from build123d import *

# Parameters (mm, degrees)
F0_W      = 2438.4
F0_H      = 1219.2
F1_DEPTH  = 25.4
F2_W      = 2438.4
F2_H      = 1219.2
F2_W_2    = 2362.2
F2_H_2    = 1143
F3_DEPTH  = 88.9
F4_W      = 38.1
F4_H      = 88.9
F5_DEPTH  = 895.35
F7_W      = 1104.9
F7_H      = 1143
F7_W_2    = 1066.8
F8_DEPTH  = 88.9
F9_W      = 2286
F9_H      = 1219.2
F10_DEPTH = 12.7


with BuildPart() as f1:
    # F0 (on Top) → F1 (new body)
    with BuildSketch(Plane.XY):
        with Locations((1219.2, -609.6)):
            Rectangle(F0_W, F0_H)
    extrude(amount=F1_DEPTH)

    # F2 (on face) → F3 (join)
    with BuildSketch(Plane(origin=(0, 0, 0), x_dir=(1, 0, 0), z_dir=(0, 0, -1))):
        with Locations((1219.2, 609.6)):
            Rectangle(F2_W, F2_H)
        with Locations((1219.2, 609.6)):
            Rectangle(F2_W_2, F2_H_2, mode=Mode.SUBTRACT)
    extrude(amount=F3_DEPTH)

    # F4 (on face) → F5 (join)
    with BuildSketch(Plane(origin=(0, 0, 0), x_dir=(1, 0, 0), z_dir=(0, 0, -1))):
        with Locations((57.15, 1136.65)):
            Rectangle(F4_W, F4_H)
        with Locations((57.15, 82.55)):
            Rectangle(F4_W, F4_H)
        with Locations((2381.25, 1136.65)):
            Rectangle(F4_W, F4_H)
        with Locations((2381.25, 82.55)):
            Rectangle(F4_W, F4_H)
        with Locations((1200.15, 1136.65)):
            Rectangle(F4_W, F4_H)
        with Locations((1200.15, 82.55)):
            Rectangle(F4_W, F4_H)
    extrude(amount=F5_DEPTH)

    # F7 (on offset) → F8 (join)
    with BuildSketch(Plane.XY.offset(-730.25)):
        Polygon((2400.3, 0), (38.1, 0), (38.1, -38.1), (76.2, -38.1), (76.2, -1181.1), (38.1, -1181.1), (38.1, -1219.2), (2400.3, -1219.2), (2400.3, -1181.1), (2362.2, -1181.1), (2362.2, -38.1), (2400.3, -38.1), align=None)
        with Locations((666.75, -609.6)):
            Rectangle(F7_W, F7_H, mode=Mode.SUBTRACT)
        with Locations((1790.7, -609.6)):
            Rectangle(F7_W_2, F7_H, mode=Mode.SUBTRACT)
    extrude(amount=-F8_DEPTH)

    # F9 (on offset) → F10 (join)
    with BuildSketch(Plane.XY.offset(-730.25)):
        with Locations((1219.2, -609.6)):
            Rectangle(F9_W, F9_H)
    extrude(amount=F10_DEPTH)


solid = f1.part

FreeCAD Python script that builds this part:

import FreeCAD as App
import Part
import Sketcher
Q = App.Units.Quantity

doc = App.newDocument("Part")
body = doc.addObject("PartDesign::Body", "Body")

# Sketch on XY plane
sketch1 = body.newObject("Sketcher::SketchObject", "Sketch")
sketch1.AttachmentSupport = (doc.getObject("XY_Plane"), [""])
sketch1.MapMode = "FlatFace"
sketch1.addGeometry([
    Part.LineSegment(App.Vector(0, 0, 0), App.Vector(0, -1219, 0)),
    Part.LineSegment(App.Vector(0, -1219, 0), App.Vector(2438, -1219, 0)),
    Part.LineSegment(App.Vector(2438, -1219, 0), App.Vector(2438, 0, 0)),
    Part.LineSegment(App.Vector(2438, 0, 0), App.Vector(0, 0, 0)),
], False)
sketch1.addConstraint([
    Sketcher.Constraint("Coincident", 0, 2, 1, 1),
    Sketcher.Constraint("Coincident", 1, 2, 2, 1),
    Sketcher.Constraint("Coincident", 2, 2, 3, 1),
    Sketcher.Constraint("Coincident", 3, 2, 0, 1),
    Sketcher.Constraint("Vertical", 0),
    Sketcher.Constraint("Horizontal", 1),
    Sketcher.Constraint("Vertical", 2),
    Sketcher.Constraint("Horizontal", 3),
    Sketcher.Constraint("Coincident", 3, 2, -1, 1),
    Sketcher.Constraint("DistanceX", 1, 1, 1, 2, Q("96 in")),
    Sketcher.Constraint("DistanceY", 0, 2, 0, 1, Q("48 in")),
])
pad1 = body.newObject("PartDesign::Pad", "Pad")
pad1.Profile = sketch1
pad1.Length = Q("1 in")

# Sketch on XY plane
sketch2 = body.newObject("Sketcher::SketchObject", "Sketch001")
sketch2.AttachmentSupport = (doc.getObject("XY_Plane"), [""])
sketch2.MapMode = "FlatFace"
sketch2.addGeometry([
    Part.LineSegment(App.Vector(0, -1219, 0), App.Vector(0, 0, 0)),  # 0
    Part.LineSegment(App.Vector(0, 0, 0), App.Vector(2438, 0, 0)),  # 1
    Part.LineSegment(App.Vector(2438, 0, 0), App.Vector(2438, -1219, 0)),  # 2
    Part.LineSegment(App.Vector(2438, -1219, 0), App.Vector(0, -1219, 0)),  # 3
    Part.LineSegment(App.Vector(2400, -38, 0), App.Vector(38, -38, 0)),  # 4
    Part.LineSegment(App.Vector(38, -38, 0), App.Vector(38, -1181, 0)),  # 5
    Part.LineSegment(App.Vector(38, -1181, 0), App.Vector(2400, -1181, 0)),  # 6
    Part.LineSegment(App.Vector(2400, -1181, 0), App.Vector(2400, -38, 0)),  # 7
], False)
sketch2.addConstraint([
    Sketcher.Constraint("Coincident", 0, 2, 1, 1),
    Sketcher.Constraint("Coincident", 1, 2, 2, 1),
    Sketcher.Constraint("Coincident", 2, 2, 3, 1),
    Sketcher.Constraint("Coincident", 3, 2, 0, 1),
    Sketcher.Constraint("Coincident", 4, 2, 5, 1),
    Sketcher.Constraint("Coincident", 5, 2, 6, 1),
    Sketcher.Constraint("Coincident", 6, 2, 7, 1),
    Sketcher.Constraint("Coincident", 7, 2, 4, 1),
    Sketcher.Constraint("Vertical", 0),
    Sketcher.Constraint("Horizontal", 1),
    Sketcher.Constraint("Vertical", 2),
    Sketcher.Constraint("Horizontal", 3),
    Sketcher.Constraint("Horizontal", 4),
    Sketcher.Constraint("Vertical", 5),
    Sketcher.Constraint("Horizontal", 6),
    Sketcher.Constraint("Vertical", 7),
    Sketcher.Constraint("Coincident", 0, 2, -1, 1),
    Sketcher.Constraint("DistanceX", 1, 1, 1, 2, Q("96 in")),
    Sketcher.Constraint("DistanceX", 4, 2, 4, 1, Q("93 in")),
    Sketcher.Constraint("DistanceY", 0, 1, 0, 2, Q("48 in")),
    Sketcher.Constraint("DistanceY", 5, 2, 5, 1, Q("45 in")),
    Sketcher.Constraint("DistanceX", -1, 1, 4, 2, Q("1.5 in")),
    Sketcher.Constraint("DistanceY", 4, 2, -1, 1, Q("1.5 in")),
])
pad2 = body.newObject("PartDesign::Pad", "Pad001")
pad2.Profile = sketch2
pad2.Length = Q("3.5 in")
pad2.Reversed = True

# Sketch on XY plane
sketch3 = body.newObject("Sketcher::SketchObject", "Sketch002")
sketch3.AttachmentSupport = (doc.getObject("XY_Plane"), [""])
sketch3.MapMode = "FlatFace"
sketch3.addGeometry([
    Part.LineSegment(App.Vector(38, -1181, 0), App.Vector(38, -1092, 0)),  # 0
    Part.LineSegment(App.Vector(38, -1092, 0), App.Vector(76, -1092, 0)),  # 1
    Part.LineSegment(App.Vector(76, -1092, 0), App.Vector(76, -1181, 0)),  # 2
    Part.LineSegment(App.Vector(76, -1181, 0), App.Vector(38, -1181, 0)),  # 3
    Part.LineSegment(App.Vector(38, -127, 0), App.Vector(38, -38, 0)),  # 4
    Part.LineSegment(App.Vector(38, -38, 0), App.Vector(76, -38, 0)),  # 5
    Part.LineSegment(App.Vector(76, -38, 0), App.Vector(76, -127, 0)),  # 6
    Part.LineSegment(App.Vector(76, -127, 0), App.Vector(38, -127, 0)),  # 7
    Part.LineSegment(App.Vector(2362, -1181, 0), App.Vector(2362, -1092, 0)),  # 8
    Part.LineSegment(App.Vector(2362, -1092, 0), App.Vector(2400, -1092, 0)),  # 9
    Part.LineSegment(App.Vector(2400, -1092, 0), App.Vector(2400, -1181, 0)),  # 10
    Part.LineSegment(App.Vector(2400, -1181, 0), App.Vector(2362, -1181, 0)),  # 11
    Part.LineSegment(App.Vector(2362, -127, 0), App.Vector(2362, -38, 0)),  # 12
    Part.LineSegment(App.Vector(2362, -38, 0), App.Vector(2400, -38, 0)),  # 13
    Part.LineSegment(App.Vector(2400, -38, 0), App.Vector(2400, -127, 0)),  # 14
    Part.LineSegment(App.Vector(2400, -127, 0), App.Vector(2362, -127, 0)),  # 15
    Part.LineSegment(App.Vector(1181, -1181, 0), App.Vector(1181, -1092, 0)),  # 16
    Part.LineSegment(App.Vector(1181, -1092, 0), App.Vector(1219, -1092, 0)),  # 17
    Part.LineSegment(App.Vector(1219, -1092, 0), App.Vector(1219, -1181, 0)),  # 18
    Part.LineSegment(App.Vector(1219, -1181, 0), App.Vector(1181, -1181, 0)),  # 19
    Part.LineSegment(App.Vector(1181, -127, 0), App.Vector(1181, -38, 0)),  # 20
    Part.LineSegment(App.Vector(1181, -38, 0), App.Vector(1219, -38, 0)),  # 21
    Part.LineSegment(App.Vector(1219, -38, 0), App.Vector(1219, -127, 0)),  # 22
    Part.LineSegment(App.Vector(1219, -127, 0), App.Vector(1181, -127, 0)),  # 23
], False)
sketch3.addConstraint([
    Sketcher.Constraint("Coincident", 0, 2, 1, 1),
    Sketcher.Constraint("Coincident", 1, 2, 2, 1),
    Sketcher.Constraint("Coincident", 2, 2, 3, 1),
    Sketcher.Constraint("Coincident", 3, 2, 0, 1),
    Sketcher.Constraint("Coincident", 4, 2, 5, 1),
    Sketcher.Constraint("Coincident", 5, 2, 6, 1),
    Sketcher.Constraint("Coincident", 6, 2, 7, 1),
    Sketcher.Constraint("Coincident", 7, 2, 4, 1),
    Sketcher.Constraint("Coincident", 8, 2, 9, 1),
    Sketcher.Constraint("Coincident", 9, 2, 10, 1),
    Sketcher.Constraint("Coincident", 10, 2, 11, 1),
    Sketcher.Constraint("Coincident", 11, 2, 8, 1),
    Sketcher.Constraint("Coincident", 12, 2, 13, 1),
    Sketcher.Constraint("Coincident", 13, 2, 14, 1),
    Sketcher.Constraint("Coincident", 14, 2, 15, 1),
    Sketcher.Constraint("Coincident", 15, 2, 12, 1),
    Sketcher.Constraint("Coincident", 16, 2, 17, 1),
    Sketcher.Constraint("Coincident", 17, 2, 18, 1),
    Sketcher.Constraint("Coincident", 18, 2, 19, 1),
    Sketcher.Constraint("Coincident", 19, 2, 16, 1),
    Sketcher.Constraint("Coincident", 20, 2, 21, 1),
    Sketcher.Constraint("Coincident", 21, 2, 22, 1),
    Sketcher.Constraint("Coincident", 22, 2, 23, 1),
    Sketcher.Constraint("Coincident", 23, 2, 20, 1),
    Sketcher.Constraint("Vertical", 0),
    Sketcher.Constraint("Horizontal", 1),
    Sketcher.Constraint("Vertical", 2),
    Sketcher.Constraint("Horizontal", 3),
    Sketcher.Constraint("Vertical", 4),
    Sketcher.Constraint("Horizontal", 5),
    Sketcher.Constraint("Vertical", 6),
    Sketcher.Constraint("Horizontal", 7),
    Sketcher.Constraint("Vertical", 8),
    Sketcher.Constraint("Horizontal", 9),
    Sketcher.Constraint("Vertical", 10),
    Sketcher.Constraint("Horizontal", 11),
    Sketcher.Constraint("Vertical", 12),
    Sketcher.Constraint("Horizontal", 13),
    Sketcher.Constraint("Vertical", 14),
    Sketcher.Constraint("Horizontal", 15),
    Sketcher.Constraint("Vertical", 16),
    Sketcher.Constraint("Horizontal", 17),
    Sketcher.Constraint("Vertical", 18),
    Sketcher.Constraint("Horizontal", 19),
    Sketcher.Constraint("Vertical", 20),
    Sketcher.Constraint("Horizontal", 21),
    Sketcher.Constraint("Vertical", 22),
    Sketcher.Constraint("Horizontal", 23),
    Sketcher.Constraint("Horizontal", 1, 2, 8, 2),
    Sketcher.Constraint("Horizontal", 3, 2, 10, 2),
    Sketcher.Constraint("Horizontal", 5, 2, 12, 2),
    Sketcher.Constraint("Horizontal", 7, 2, 14, 2),
    Sketcher.Constraint("Horizontal", 9, 2, 16, 2),
    Sketcher.Constraint("Horizontal", 11, 2, 18, 2),
    Sketcher.Constraint("Horizontal", 13, 2, 20, 2),
    Sketcher.Constraint("Horizontal", 15, 2, 22, 2),
    Sketcher.Constraint("Vertical", 3, 2, 4, 2),
    Sketcher.Constraint("Vertical", 2, 2, 5, 2),
    Sketcher.Constraint("Vertical", 11, 2, 12, 2),
    Sketcher.Constraint("Vertical", 10, 2, 13, 2),
    Sketcher.Constraint("Vertical", 19, 2, 20, 2),
    Sketcher.Constraint("Vertical", 18, 2, 21, 2),
    Sketcher.Constraint("Equal", 7, 9),
    Sketcher.Constraint("Equal", 15, 17),
    Sketcher.Constraint("Equal", 2, 4),
    Sketcher.Constraint("DistanceX", 1, 1, 1, 2, Q("1.5 in")),
    Sketcher.Constraint("DistanceY", 0, 1, 0, 2, Q("3.5 in")),
    Sketcher.Constraint("DistanceY", 0, 2, -1, 1, Q("43 in")),
    Sketcher.Constraint("DistanceX", -1, 1, 1, 2, Q("3 in")),
    Sketcher.Constraint("DistanceY", 6, 2, -1, 1, Q("5 in")),
    Sketcher.Constraint("DistanceX", -1, 1, 8, 2, Q("93 in")),
    Sketcher.Constraint("DistanceX", -1, 1, 17, 2, Q("48 in")),
])
pad3 = body.newObject("PartDesign::Pad", "Pad002")
pad3.Profile = sketch3
pad3.Length = Q("35.25 in")
pad3.Reversed = True

# Sketch on XY plane
sketch4 = body.newObject("Sketcher::SketchObject", "Sketch003")
sketch4.AttachmentSupport = (doc.getObject("XY_Plane"), [""])
sketch4.MapMode = "FlatFace"
sketch4.AttachmentOffset = App.Placement(App.Vector(0, 0, -28.75 * 25.4), App.Rotation())
sketch4.addGeometry([
    Part.LineSegment(App.Vector(2400, 0, 0), App.Vector(38, 0, 0)),  # 0
    Part.LineSegment(App.Vector(38, 0, 0), App.Vector(38, -38, 0)),  # 1
    Part.LineSegment(App.Vector(38, -38, 0), App.Vector(76, -38, 0)),  # 2
    Part.LineSegment(App.Vector(76, -38, 0), App.Vector(76, -1181, 0)),  # 3
    Part.LineSegment(App.Vector(76, -1181, 0), App.Vector(38, -1181, 0)),  # 4
    Part.LineSegment(App.Vector(38, -1181, 0), App.Vector(38, -1219, 0)),  # 5
    Part.LineSegment(App.Vector(38, -1219, 0), App.Vector(2400, -1219, 0)),  # 6
    Part.LineSegment(App.Vector(2400, -1219, 0), App.Vector(2400, -1181, 0)),  # 7
    Part.LineSegment(App.Vector(2400, -1181, 0), App.Vector(2362, -1181, 0)),  # 8
    Part.LineSegment(App.Vector(2362, -1181, 0), App.Vector(2362, -38, 0)),  # 9
    Part.LineSegment(App.Vector(2362, -38, 0), App.Vector(2400, -38, 0)),  # 10
    Part.LineSegment(App.Vector(2400, -38, 0), App.Vector(2400, 0, 0)),  # 11
    Part.LineSegment(App.Vector(1219, -1181, 0), App.Vector(114, -1181, 0)),  # 12
    Part.LineSegment(App.Vector(114, -1181, 0), App.Vector(114, -38, 0)),  # 13
    Part.LineSegment(App.Vector(114, -38, 0), App.Vector(1219, -38, 0)),  # 14
    Part.LineSegment(App.Vector(1219, -38, 0), App.Vector(1219, -1181, 0)),  # 15
    Part.LineSegment(App.Vector(2324, -1181, 0), App.Vector(1257, -1181, 0)),  # 16
    Part.LineSegment(App.Vector(1257, -1181, 0), App.Vector(1257, -38, 0)),  # 17
    Part.LineSegment(App.Vector(1257, -38, 0), App.Vector(2324, -38, 0)),  # 18
    Part.LineSegment(App.Vector(2324, -38, 0), App.Vector(2324, -1181, 0)),  # 19
], False)
sketch4.addConstraint([
    Sketcher.Constraint("Coincident", 0, 2, 1, 1),
    Sketcher.Constraint("Coincident", 1, 2, 2, 1),
    Sketcher.Constraint("Coincident", 2, 2, 3, 1),
    Sketcher.Constraint("Coincident", 3, 2, 4, 1),
    Sketcher.Constraint("Coincident", 4, 2, 5, 1),
    Sketcher.Constraint("Coincident", 5, 2, 6, 1),
    Sketcher.Constraint("Coincident", 6, 2, 7, 1),
    Sketcher.Constraint("Coincident", 7, 2, 8, 1),
    Sketcher.Constraint("Coincident", 8, 2, 9, 1),
    Sketcher.Constraint("Coincident", 9, 2, 10, 1),
    Sketcher.Constraint("Coincident", 10, 2, 11, 1),
    Sketcher.Constraint("Coincident", 11, 2, 0, 1),
    Sketcher.Constraint("Coincident", 12, 2, 13, 1),
    Sketcher.Constraint("Coincident", 13, 2, 14, 1),
    Sketcher.Constraint("Coincident", 14, 2, 15, 1),
    Sketcher.Constraint("Coincident", 15, 2, 12, 1),
    Sketcher.Constraint("Coincident", 16, 2, 17, 1),
    Sketcher.Constraint("Coincident", 17, 2, 18, 1),
    Sketcher.Constraint("Coincident", 18, 2, 19, 1),
    Sketcher.Constraint("Coincident", 19, 2, 16, 1),
    Sketcher.Constraint("Horizontal", 0),
    Sketcher.Constraint("Vertical", 1),
    Sketcher.Constraint("Horizontal", 2),
    Sketcher.Constraint("Vertical", 3),
    Sketcher.Constraint("Horizontal", 4),
    Sketcher.Constraint("Vertical", 5),
    Sketcher.Constraint("Horizontal", 6),
    Sketcher.Constraint("Vertical", 7),
    Sketcher.Constraint("Horizontal", 8),
    Sketcher.Constraint("Vertical", 9),
    Sketcher.Constraint("Horizontal", 10),
    Sketcher.Constraint("Vertical", 11),
    Sketcher.Constraint("Horizontal", 12),
    Sketcher.Constraint("Vertical", 13),
    Sketcher.Constraint("Horizontal", 14),
    Sketcher.Constraint("Vertical", 15),
    Sketcher.Constraint("Horizontal", 16),
    Sketcher.Constraint("Vertical", 17),
    Sketcher.Constraint("Horizontal", 18),
    Sketcher.Constraint("Vertical", 19),
    Sketcher.Constraint("PointOnObject", 0, 2, -1),
    Sketcher.Constraint("Horizontal", 4, 2, 7, 2),
    Sketcher.Constraint("Horizontal", 2, 2, 9, 2),
    Sketcher.Constraint("Horizontal", 8, 2, 12, 2),
    Sketcher.Constraint("Horizontal", 10, 2, 13, 2),
    Sketcher.Constraint("Horizontal", 15, 2, 16, 2),
    Sketcher.Constraint("Horizontal", 14, 2, 17, 2),
    Sketcher.Constraint("Vertical", 1, 2, 4, 2),
    Sketcher.Constraint("Vertical", 7, 2, 10, 2),
    Sketcher.Constraint("Equal", 4, 8),
    Sketcher.Constraint("Equal", 10, 1),
    Sketcher.Constraint("Equal", 1, 5),
    Sketcher.Constraint("DistanceX", 0, 2, 0, 1, Q("93 in")),
    Sketcher.Constraint("DistanceX", 16, 2, 16, 1, Q("42 in")),
    Sketcher.Constraint("DistanceY", 3, 2, 3, 1, Q("45 in")),
    Sketcher.Constraint("DistanceX", 2, 1, 2, 2, Q("1.5 in")),
    Sketcher.Constraint("DistanceX", 12, 2, 12, 1, Q("43.5 in")),
    Sketcher.Constraint("DistanceX", -1, 1, 2, 2, Q("3 in")),
    Sketcher.Constraint("DistanceX", -1, 1, 14, 2, Q("48 in")),
    Sketcher.Constraint("DistanceX", 12, 2, 16, 2, Q("45 in")),
])
pad4 = body.newObject("PartDesign::Pad", "Pad003")
pad4.Profile = sketch4
pad4.Length = Q("3.5 in")
pad4.Reversed = True

# Sketch on XY plane
sketch5 = body.newObject("Sketcher::SketchObject", "Sketch004")
sketch5.AttachmentSupport = (doc.getObject("XY_Plane"), [""])
sketch5.MapMode = "FlatFace"
sketch5.AttachmentOffset = App.Placement(App.Vector(0, 0, -28.75 * 25.4), App.Rotation())
sketch5.addGeometry([
    Part.LineSegment(App.Vector(76, 0, 0), App.Vector(76, -1219, 0)),
    Part.LineSegment(App.Vector(76, -1219, 0), App.Vector(2362, -1219, 0)),
    Part.LineSegment(App.Vector(2362, -1219, 0), App.Vector(2362, 0, 0)),
    Part.LineSegment(App.Vector(2362, 0, 0), App.Vector(76, 0, 0)),
], False)
sketch5.addConstraint([
    Sketcher.Constraint("Coincident", 0, 2, 1, 1),
    Sketcher.Constraint("Coincident", 1, 2, 2, 1),
    Sketcher.Constraint("Coincident", 2, 2, 3, 1),
    Sketcher.Constraint("Coincident", 3, 2, 0, 1),
    Sketcher.Constraint("Vertical", 0),
    Sketcher.Constraint("Horizontal", 1),
    Sketcher.Constraint("Vertical", 2),
    Sketcher.Constraint("Horizontal", 3),
    Sketcher.Constraint("PointOnObject", 2, 2, -1),
    Sketcher.Constraint("DistanceX", 1, 1, 1, 2, Q("90 in")),
    Sketcher.Constraint("DistanceY", 0, 2, 0, 1, Q("48 in")),
    Sketcher.Constraint("DistanceX", -1, 1, 0, 2, Q("3 in")),
])
pad5 = body.newObject("PartDesign::Pad", "Pad004")
pad5.Profile = sketch5
pad5.Length = Q("0.5 in")

doc.recompute()
